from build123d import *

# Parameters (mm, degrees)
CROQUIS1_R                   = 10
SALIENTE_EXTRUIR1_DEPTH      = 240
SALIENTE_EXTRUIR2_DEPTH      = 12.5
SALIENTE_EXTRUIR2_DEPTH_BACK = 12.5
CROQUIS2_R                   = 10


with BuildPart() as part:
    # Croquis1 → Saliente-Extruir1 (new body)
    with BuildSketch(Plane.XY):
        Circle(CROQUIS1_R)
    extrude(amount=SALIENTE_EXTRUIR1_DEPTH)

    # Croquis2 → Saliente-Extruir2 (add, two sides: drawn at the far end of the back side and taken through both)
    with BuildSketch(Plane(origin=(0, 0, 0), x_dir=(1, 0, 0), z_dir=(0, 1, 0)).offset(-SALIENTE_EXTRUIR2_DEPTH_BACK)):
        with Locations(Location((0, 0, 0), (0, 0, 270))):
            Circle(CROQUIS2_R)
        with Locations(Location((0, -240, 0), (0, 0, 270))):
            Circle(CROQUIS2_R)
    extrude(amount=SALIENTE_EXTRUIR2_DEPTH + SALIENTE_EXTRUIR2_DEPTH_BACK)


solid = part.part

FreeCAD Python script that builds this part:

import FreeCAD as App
import Part
import Sketcher
from FreeCAD import Vector

doc = App.newDocument("Part")
params = doc.addObject("Spreadsheet::Sheet", "Params")
for row, (alias, value) in enumerate([
    ("sketch1_diameter", "20 mm"),
    ("pad1_length", "240 mm"),
    ("sketch2_diameter", "20 mm"),
    ("pad2_length", "12.5 mm"),
    ("pad2_length2", "12.5 mm"),
], start=1):
    params.set(f"A{row}", alias)
    params.set(f"B{row}", "=" + value)
    params.setAlias(f"B{row}", alias)

body = doc.addObject("PartDesign::Body", "Body")

sketch1 = body.newObject("Sketcher::SketchObject", "Sketch")
sketch1.AttachmentSupport = (doc.getObject("XY_Plane"), [""])
sketch1.MapMode = "FlatFace"
sketch1.addGeometry(Part.Circle(Vector(0, 0, 0), Vector(0, 0, 1), 10), False)
sketch1.addConstraint(Sketcher.Constraint("Coincident", 0, 3, -1, 1))
sketch1.addConstraint(Sketcher.Constraint("Diameter", 0, 20.0))
sketch1.setExpression("Constraints[1]", "Params.sketch1_diameter")
pad1 = body.newObject("PartDesign::Pad", "Pad")
pad1.Profile = sketch1
pad1.setExpression("Length", "Params.pad1_length")

sketch2 = body.newObject("Sketcher::SketchObject", "Sketch001")
sketch2.AttachmentSupport = (doc.getObject("XZ_Plane"), [""])
sketch2.MapMode = "FlatFace"
sketch2.addGeometry(Part.Circle(Vector(0, 0, 0), Vector(0, 0, 1), 10), False)
sketch2.addGeometry(Part.Circle(Vector(0, 240, 0), Vector(0, 0, 1), 10), False)
sketch2.addConstraint(Sketcher.Constraint("Coincident", 0, 3, -1, 1))
sketch2.addConstraint(Sketcher.Constraint("Equal", 0, 1))
sketch2.addConstraint(Sketcher.Constraint("PointOnObject", 1, 3, -2))
sketch2.addConstraint(Sketcher.Constraint("Diameter", 0, 20.0))
sketch2.addConstraint(Sketcher.Constraint("DistanceY", -1, 1, 1, 3, 240.0))
sketch2.setExpression("Constraints[3]", "Params.sketch2_diameter")
pad2 = body.newObject("PartDesign::Pad", "Pad001")
pad2.Profile = sketch2
pad2.Type = "TwoLengths"
pad2.setExpression("Length", "Params.pad2_length")
pad2.setExpression("Length2", "Params.pad2_length2")
pad2.Reversed = True

doc.recompute()
